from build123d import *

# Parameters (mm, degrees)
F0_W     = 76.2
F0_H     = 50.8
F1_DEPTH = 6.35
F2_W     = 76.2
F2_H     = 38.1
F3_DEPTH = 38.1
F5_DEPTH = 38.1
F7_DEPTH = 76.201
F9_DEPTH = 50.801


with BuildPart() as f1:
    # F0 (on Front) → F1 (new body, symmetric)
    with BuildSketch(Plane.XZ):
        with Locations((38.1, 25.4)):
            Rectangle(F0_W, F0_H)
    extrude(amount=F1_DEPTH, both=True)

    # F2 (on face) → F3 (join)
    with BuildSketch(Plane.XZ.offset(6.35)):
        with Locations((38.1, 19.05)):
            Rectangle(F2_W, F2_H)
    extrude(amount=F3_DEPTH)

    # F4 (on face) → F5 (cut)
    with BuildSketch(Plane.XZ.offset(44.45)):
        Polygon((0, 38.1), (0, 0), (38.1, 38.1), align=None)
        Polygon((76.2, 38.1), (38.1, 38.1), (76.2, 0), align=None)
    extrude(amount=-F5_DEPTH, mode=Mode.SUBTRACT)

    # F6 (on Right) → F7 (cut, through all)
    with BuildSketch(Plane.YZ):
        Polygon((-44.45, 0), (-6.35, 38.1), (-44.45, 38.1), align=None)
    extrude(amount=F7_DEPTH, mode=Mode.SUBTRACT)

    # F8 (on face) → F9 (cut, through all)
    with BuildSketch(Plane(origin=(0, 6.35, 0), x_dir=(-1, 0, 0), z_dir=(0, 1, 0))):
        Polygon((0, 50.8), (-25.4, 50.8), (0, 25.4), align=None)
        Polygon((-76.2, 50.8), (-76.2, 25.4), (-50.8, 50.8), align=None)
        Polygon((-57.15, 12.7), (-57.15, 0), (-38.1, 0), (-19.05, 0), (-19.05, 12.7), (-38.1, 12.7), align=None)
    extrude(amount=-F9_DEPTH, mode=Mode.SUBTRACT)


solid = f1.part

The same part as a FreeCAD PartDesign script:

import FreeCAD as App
import Part
import Sketcher
Q = App.Units.Quantity


def add_polygon(sketch, points):
    """Adds a closed chain of lines whose ends are joined by coincident constraints."""
    first, n = sketch.GeometryCount, len(points)
    for a, b in zip(points, points[1:] + points[:1]):
        sketch.addGeometry(Part.LineSegment(App.Vector(*a, 0), App.Vector(*b, 0)), False)
    for i in range(n):
        sketch.addConstraint(Sketcher.Constraint("Coincident", first + i, 2, first + (i + 1) % n, 1))

doc = App.newDocument("Part")
body = doc.addObject("PartDesign::Body", "Body")

# Sketch on XZ plane
sketch1 = body.newObject("Sketcher::SketchObject", "Sketch")
sketch1.AttachmentSupport = (doc.getObject("XZ_Plane"), [""])
sketch1.MapMode = "FlatFace"
add_polygon(sketch1, [(0, 51), (0, 0), (76, 0), (76, 51)])  # lines 0-3
sketch1.addConstraint([
    Sketcher.Constraint("Vertical", 0),
    Sketcher.Constraint("Horizontal", 1),
    Sketcher.Constraint("Vertical", 2),
    Sketcher.Constraint("Horizontal", 3),
    Sketcher.Constraint("Coincident", 0, 2, -1, 1),
    Sketcher.Constraint("DistanceX", 1, 1, 1, 2, Q("3 in")),
    Sketcher.Constraint("DistanceY", 0, 2, 0, 1, Q("2 in")),
])
pad1 = body.newObject("PartDesign::Pad", "Pad")
pad1.Profile = sketch1
pad1.Length = Q("0.5 in")
pad1.Midplane = True

# Sketch on XZ plane
sketch2 = body.newObject("Sketcher::SketchObject", "Sketch001")
sketch2.AttachmentSupport = (doc.getObject("XZ_Plane"), [""])
sketch2.MapMode = "FlatFace"
sketch2.AttachmentOffset = App.Placement(App.Vector(0, 0, 0.25 * 25.4), App.Rotation())
add_polygon(sketch2, [(0, 38), (0, 0), (76, 0), (76, 38)])  # lines 0-3
sketch2.addConstraint([
    Sketcher.Constraint("Vertical", 0),
    Sketcher.Constraint("Horizontal", 1),
    Sketcher.Constraint("Vertical", 2),
    Sketcher.Constraint("Horizontal", 3),
    Sketcher.Constraint("Coincident", 0, 2, -1, 1),
    Sketcher.Constraint("DistanceX", 1, 1, 1, 2, Q("3 in")),
    Sketcher.Constraint("DistanceY", 0, 2, 0, 1, Q("1.5 in")),
])
pad2 = body.newObject("PartDesign::Pad", "Pad001")
pad2.Profile = sketch2
pad2.Length = Q("1.5 in")

# Sketch on XZ plane
sketch3 = body.newObject("Sketcher::SketchObject", "Sketch002")
sketch3.AttachmentSupport = (doc.getObject("XZ_Plane"), [""])
sketch3.MapMode = "FlatFace"
sketch3.AttachmentOffset = App.Placement(App.Vector(0, 0, 1.75 * 25.4), App.Rotation())
add_polygon(sketch3, [(0, 38), (0, 0), (38, 38)])  # lines 0-2
add_polygon(sketch3, [(76, 38), (38, 38), (76, 0)])  # lines 3-5
sketch3.addConstraint([
    Sketcher.Constraint("Vertical", 0),
    Sketcher.Constraint("Horizontal", 2),
    Sketcher.Constraint("Horizontal", 3),
    Sketcher.Constraint("Vertical", 5),
    Sketcher.Constraint("Coincident", 0, 2, -1, 1),
    Sketcher.Constraint("Coincident", 3, 2, 1, 2),
    Sketcher.Constraint("PointOnObject", 4, 2, -1),
    Sketcher.Constraint("Perpendicular", 1, 4),
    Sketcher.Constraint("Equal", 2, 3),
    Sketcher.Constraint("DistanceX", 2, 2, 2, 1, Q("1.5 in")),
])
pocket1 = body.newObject("PartDesign::Pocket", "Pocket")
pocket1.Profile = sketch3
pocket1.Length = Q("1.5 in")

# Sketch on YZ plane
sketch4 = body.newObject("Sketcher::SketchObject", "Sketch003")
sketch4.AttachmentSupport = (doc.getObject("YZ_Plane"), [""])
sketch4.MapMode = "FlatFace"
add_polygon(sketch4, [(-44, 0), (-6, 38), (-44, 38)])  # lines 0-2
sketch4.addConstraint([
    Sketcher.Constraint("Horizontal", 1),
    Sketcher.Constraint("Vertical", 2),
    Sketcher.Constraint("PointOnObject", 2, 2, -1),
    Sketcher.Constraint("Equal", 1, 2),
    Sketcher.Constraint("DistanceX", 1, 2, 1, 1, Q("1.5 in")),
    Sketcher.Constraint("DistanceX", 0, 2, -1, 1, Q("0.25 in")),
])
pocket2 = body.newObject("PartDesign::Pocket", "Pocket001")
pocket2.Profile = sketch4
pocket2.Type = "ThroughAll"
pocket2.Reversed = True

# Sketch on XZ plane
sketch5 = body.newObject("Sketcher::SketchObject", "Sketch004")
sketch5.AttachmentSupport = (doc.getObject("XZ_Plane"), [""])
sketch5.MapMode = "FlatFace"
sketch5.AttachmentOffset = App.Placement(App.Vector(0, 0, -0.25 * 25.4), App.Rotation())
add_polygon(sketch5, [(0, 51), (25, 51), (0, 25)])  # lines 0-2
add_polygon(sketch5, [(76, 51), (76, 25), (51, 51)])  # lines 3-5
add_polygon(sketch5, [(57, 13), (57, 0), (19, 0), (19, 13)])  # lines 6-9
sketch5.addConstraint([
    Sketcher.Constraint("Horizontal", 0),
    Sketcher.Constraint("Vertical", 2),
    Sketcher.Constraint("Vertical", 3),
    Sketcher.Constraint("Horizontal", 5),
    Sketcher.Constraint("Vertical", 6),
    Sketcher.Constraint("Horizontal", 7),
    Sketcher.Constraint("Vertical", 8),
    Sketcher.Constraint("Horizontal", 9),
    Sketcher.Constraint("PointOnObject", 1, 2, -2),
    Sketcher.Constraint("PointOnObject", 6, 2, -1),
    Sketcher.Constraint("Perpendicular", 1, 4),
    Sketcher.Constraint("Horizontal", 1, 2, 3, 2),
    Sketcher.Constraint("Horizontal", 2, 2, 4, 2),
    Sketcher.Constraint("Equal", 0, 5),
    Sketcher.Constraint("DistanceX", 0, 1, 0, 2, Q("1 in")),
    Sketcher.Constraint("DistanceX", 7, 2, 7, 1, Q("1.5 in")),
    Sketcher.Constraint("DistanceY", 6, 2, 6, 1, Q("0.5 in")),
    Sketcher.Constraint("DistanceY", -1, 1, 0, 2, Q("2 in")),
    Sketcher.Constraint("DistanceX", -1, 1, 3, 2, Q("3 in")),
    Sketcher.Constraint("DistanceX", -1, 1, 6, 2, Q("2.25 in")),
])
pocket3 = body.newObject("PartDesign::Pocket", "Pocket002")
pocket3.Profile = sketch5
pocket3.Type = "ThroughAll"
pocket3.Reversed = True

doc.recompute()
